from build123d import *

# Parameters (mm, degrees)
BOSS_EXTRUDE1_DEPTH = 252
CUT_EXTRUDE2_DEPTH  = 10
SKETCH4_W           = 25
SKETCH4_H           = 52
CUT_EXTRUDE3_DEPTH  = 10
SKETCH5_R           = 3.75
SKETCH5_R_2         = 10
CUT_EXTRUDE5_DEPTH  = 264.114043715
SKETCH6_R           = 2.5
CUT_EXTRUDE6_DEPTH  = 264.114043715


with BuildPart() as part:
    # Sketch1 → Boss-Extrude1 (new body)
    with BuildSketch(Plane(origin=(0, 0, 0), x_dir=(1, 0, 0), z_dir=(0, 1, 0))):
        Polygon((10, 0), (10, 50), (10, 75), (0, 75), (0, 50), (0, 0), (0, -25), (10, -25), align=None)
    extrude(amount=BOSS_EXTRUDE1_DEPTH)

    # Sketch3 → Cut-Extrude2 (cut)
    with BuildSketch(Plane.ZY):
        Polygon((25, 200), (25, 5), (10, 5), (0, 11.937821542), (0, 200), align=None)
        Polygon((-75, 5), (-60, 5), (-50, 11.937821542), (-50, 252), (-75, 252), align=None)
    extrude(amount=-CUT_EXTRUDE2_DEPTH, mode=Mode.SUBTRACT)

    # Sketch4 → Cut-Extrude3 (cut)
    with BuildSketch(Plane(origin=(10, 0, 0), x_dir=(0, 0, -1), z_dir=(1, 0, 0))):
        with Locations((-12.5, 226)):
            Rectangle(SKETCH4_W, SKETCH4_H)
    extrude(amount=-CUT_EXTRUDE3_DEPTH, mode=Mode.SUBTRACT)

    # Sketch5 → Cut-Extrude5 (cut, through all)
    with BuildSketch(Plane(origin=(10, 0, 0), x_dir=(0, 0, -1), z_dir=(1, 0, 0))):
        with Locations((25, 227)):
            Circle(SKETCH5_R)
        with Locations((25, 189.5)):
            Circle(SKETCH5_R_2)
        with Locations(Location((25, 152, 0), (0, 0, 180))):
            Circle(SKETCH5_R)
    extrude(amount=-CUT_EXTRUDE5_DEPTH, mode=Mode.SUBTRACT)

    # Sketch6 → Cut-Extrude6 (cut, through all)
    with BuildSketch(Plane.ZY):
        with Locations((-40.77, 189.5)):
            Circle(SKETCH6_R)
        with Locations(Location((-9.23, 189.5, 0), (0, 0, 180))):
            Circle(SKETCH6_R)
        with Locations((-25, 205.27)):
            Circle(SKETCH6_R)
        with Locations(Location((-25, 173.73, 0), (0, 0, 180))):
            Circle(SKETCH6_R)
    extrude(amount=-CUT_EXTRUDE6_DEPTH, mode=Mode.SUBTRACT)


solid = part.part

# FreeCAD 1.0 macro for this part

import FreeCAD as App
import Part
import Sketcher
from FreeCAD import Vector
Q = App.Units.Quantity


def add_polygon(sketch, points):
    """Adds a closed chain of lines whose ends are joined by coincident constraints."""
    first, n = sketch.GeometryCount, len(points)
    for a, b in zip(points, points[1:] + points[:1]):
        sketch.addGeometry(Part.LineSegment(App.Vector(*a, 0), App.Vector(*b, 0)), False)
    for i in range(n):
        sketch.addConstraint(Sketcher.Constraint("Coincident", first + i, 2, first + (i + 1) % n, 1))

doc = App.newDocument("Part")
body = doc.addObject("PartDesign::Body", "Body")

# Sketch on XZ plane
sketch1 = body.newObject("Sketcher::SketchObject", "Sketch")
sketch1.AttachmentSupport = (doc.getObject("XZ_Plane"), [""])
sketch1.MapMode = "FlatFace"
add_polygon(sketch1, [(10, -75), (0, -75), (0, 25), (10, 25)])  # lines 0-3
sketch1.addConstraint([
    Sketcher.Constraint("Horizontal", 0),
    Sketcher.Constraint("Vertical", 1),
    Sketcher.Constraint("Horizontal", 2),
    Sketcher.Constraint("Vertical", 3),
    Sketcher.Constraint("PointOnObject", 0, 2, -2),
    Sketcher.Constraint("DistanceX", 0, 2, 0, 1, Q("10 mm")),
    Sketcher.Constraint("DistanceY", 1, 1, 1, 2, Q("100 mm")),
    Sketcher.Constraint("DistanceY", 0, 2, -1, 1, Q("75 mm")),
])
pad1 = body.newObject("PartDesign::Pad", "Pad")
pad1.Profile = sketch1
pad1.Length = 252
pad1.Reversed = True

# Sketch on YZ plane
sketch2 = body.newObject("Sketcher::SketchObject", "Sketch001")
sketch2.AttachmentSupport = (doc.getObject("YZ_Plane"), [""])
sketch2.MapMode = "FlatFace"
add_polygon(sketch2, [(5, 25), (200, 25), (200, 0), (12, 0), (5, 10)])  # lines 0-4
add_polygon(sketch2, [(5, -75), (5, -60), (12, -50), (252, -50), (252, -75)])  # lines 5-9
sketch2.addConstraint([
    Sketcher.Constraint("Horizontal", 0),
    Sketcher.Constraint("Vertical", 1),
    Sketcher.Constraint("Horizontal", 2),
    Sketcher.Constraint("Vertical", 4),
    Sketcher.Constraint("Vertical", 5),
    Sketcher.Constraint("Horizontal", 7),
    Sketcher.Constraint("Vertical", 8),
    Sketcher.Constraint("Horizontal", 9),
    Sketcher.Constraint("PointOnObject", 1, 2, -1),
    Sketcher.Constraint("Vertical", 4, 2, 5, 2),
    Sketcher.Constraint("Vertical", 2, 2, 6, 2),
    Sketcher.Constraint("Equal", 4, 5),
    Sketcher.Constraint("Equal", 1, 8),
    Sketcher.Constraint("DistanceX", 0, 1, 0, 2, Q("195 mm")),
    Sketcher.Constraint("DistanceX", 9, 2, 9, 1, Q("247 mm")),
    Sketcher.Constraint("DistanceY", 1, 2, 1, 1, Q("25 mm")),
    Sketcher.Constraint("DistanceY", 4, 1, 4, 2, Q("15 mm")),
    Sketcher.Constraint("DistanceX", -1, 1, 0, 2, Q("200 mm")),
    Sketcher.Constraint("DistanceY", 5, 2, -1, 1, Q("60 mm")),
    Sketcher.Constraint("DistanceX", 2, 2, 2, 1, Q("188.062178 mm")),
])
pocket1 = body.newObject("PartDesign::Pocket", "Pocket")
pocket1.Profile = sketch2
pocket1.Length = 10
pocket1.Reversed = True

# Sketch on YZ plane
sketch3 = body.newObject("Sketcher::SketchObject", "Sketch002")
sketch3.AttachmentSupport = (doc.getObject("YZ_Plane"), [""])
sketch3.MapMode = "FlatFace"
sketch3.AttachmentOffset = App.Placement(Vector(0, 0, 10), App.Rotation())
add_polygon(sketch3, [(252, 25), (200, 25), (200, 0), (252, 0)])  # lines 0-3
sketch3.addConstraint([
    Sketcher.Constraint("Horizontal", 0),
    Sketcher.Constraint("Vertical", 1),
    Sketcher.Constraint("Horizontal", 2),
    Sketcher.Constraint("Vertical", 3),
    Sketcher.Constraint("PointOnObject", 1, 2, -1),
    Sketcher.Constraint("DistanceX", 0, 2, 0, 1, Q("52 mm")),
    Sketcher.Constraint("DistanceY", 1, 2, 1, 1, Q("25 mm")),
    Sketcher.Constraint("DistanceX", -1, 1, 0, 2, Q("200 mm")),
])
pocket2 = body.newObject("PartDesign::Pocket", "Pocket001")
pocket2.Profile = sketch3
pocket2.Length = 10

# Sketch on YZ plane
sketch4 = body.newObject("Sketcher::SketchObject", "Sketch003")
sketch4.AttachmentSupport = (doc.getObject("YZ_Plane"), [""])
sketch4.MapMode = "FlatFace"
sketch4.AttachmentOffset = App.Placement(Vector(0, 0, 10), App.Rotation())
sketch4.addGeometry([
    Part.Circle(Vector(227, -25, 0), Vector(0, 0, 1), 3.8),
    Part.Circle(Vector(189.5, -25, 0), Vector(0, 0, 1), 10),
    Part.Circle(Vector(152, -25, 0), Vector(0, 0, 1), 3.8),
], False)
sketch4.addConstraint([
    Sketcher.Constraint("Equal", 0, 2),
    Sketcher.Constraint("Horizontal", 0, 3, 1, 3),
    Sketcher.Constraint("Horizontal", 1, 3, 2, 3),
    Sketcher.Constraint("Diameter", 1, Q("20 mm")),
    Sketcher.Constraint("Diameter", 0, Q("7.5 mm")),
    Sketcher.Constraint("DistanceX", -1, 1, 0, 3, Q("227 mm")),
    Sketcher.Constraint("DistanceY", 0, 3, -1, 1, Q("25 mm")),
    Sketcher.Constraint("DistanceX", -1, 1, 2, 3, Q("152 mm")),
    Sketcher.Constraint("DistanceX", -1, 1, 1, 3, Q("189.5 mm")),
])
pocket3 = body.newObject("PartDesign::Pocket", "Pocket002")
pocket3.Profile = sketch4
pocket3.Type = "ThroughAll"

# Sketch on YZ plane
sketch5 = body.newObject("Sketcher::SketchObject", "Sketch004")
sketch5.AttachmentSupport = (doc.getObject("YZ_Plane"), [""])
sketch5.MapMode = "FlatFace"
sketch5.addGeometry([
    Part.Circle(Vector(189.5, -40.8, 0), Vector(0, 0, 1), 2.5),
    Part.Circle(Vector(189.5, -9.2, 0), Vector(0, 0, 1), 2.5),
    Part.Circle(Vector(205.3, -25, 0), Vector(0, 0, 1), 2.5),
    Part.Circle(Vector(173.7, -25, 0), Vector(0, 0, 1), 2.5),
], False)
sketch5.addConstraint([
    Sketcher.Constraint("Equal", 0, 1),
    Sketcher.Constraint("Equal", 1, 2),
    Sketcher.Constraint("Equal", 2, 3),
    Sketcher.Constraint("Horizontal", 2, 3, 3, 3),
    Sketcher.Constraint("Vertical", 0, 3, 1, 3),
    Sketcher.Constraint("Diameter", 0, Q("5 mm")),
    Sketcher.Constraint("DistanceY", 2, 3, -1, 1, Q("25 mm")),
    Sketcher.Constraint("DistanceX", -1, 1, 0, 3, Q("189.5 mm")),
    Sketcher.Constraint("DistanceY", 0, 3, -1, 1, Q("40.77 mm")),
    Sketcher.Constraint("DistanceY", 1, 3, -1, 1, Q("9.23 mm")),
    Sketcher.Constraint("DistanceX", -1, 1, 2, 3, Q("205.27 mm")),
    Sketcher.Constraint("DistanceX", -1, 1, 3, 3, Q("173.73 mm")),
])
pocket4 = body.newObject("PartDesign::Pocket", "Pocket003")
pocket4.Profile = sketch5
pocket4.Type = "ThroughAll"
pocket4.Reversed = True

doc.recompute()
